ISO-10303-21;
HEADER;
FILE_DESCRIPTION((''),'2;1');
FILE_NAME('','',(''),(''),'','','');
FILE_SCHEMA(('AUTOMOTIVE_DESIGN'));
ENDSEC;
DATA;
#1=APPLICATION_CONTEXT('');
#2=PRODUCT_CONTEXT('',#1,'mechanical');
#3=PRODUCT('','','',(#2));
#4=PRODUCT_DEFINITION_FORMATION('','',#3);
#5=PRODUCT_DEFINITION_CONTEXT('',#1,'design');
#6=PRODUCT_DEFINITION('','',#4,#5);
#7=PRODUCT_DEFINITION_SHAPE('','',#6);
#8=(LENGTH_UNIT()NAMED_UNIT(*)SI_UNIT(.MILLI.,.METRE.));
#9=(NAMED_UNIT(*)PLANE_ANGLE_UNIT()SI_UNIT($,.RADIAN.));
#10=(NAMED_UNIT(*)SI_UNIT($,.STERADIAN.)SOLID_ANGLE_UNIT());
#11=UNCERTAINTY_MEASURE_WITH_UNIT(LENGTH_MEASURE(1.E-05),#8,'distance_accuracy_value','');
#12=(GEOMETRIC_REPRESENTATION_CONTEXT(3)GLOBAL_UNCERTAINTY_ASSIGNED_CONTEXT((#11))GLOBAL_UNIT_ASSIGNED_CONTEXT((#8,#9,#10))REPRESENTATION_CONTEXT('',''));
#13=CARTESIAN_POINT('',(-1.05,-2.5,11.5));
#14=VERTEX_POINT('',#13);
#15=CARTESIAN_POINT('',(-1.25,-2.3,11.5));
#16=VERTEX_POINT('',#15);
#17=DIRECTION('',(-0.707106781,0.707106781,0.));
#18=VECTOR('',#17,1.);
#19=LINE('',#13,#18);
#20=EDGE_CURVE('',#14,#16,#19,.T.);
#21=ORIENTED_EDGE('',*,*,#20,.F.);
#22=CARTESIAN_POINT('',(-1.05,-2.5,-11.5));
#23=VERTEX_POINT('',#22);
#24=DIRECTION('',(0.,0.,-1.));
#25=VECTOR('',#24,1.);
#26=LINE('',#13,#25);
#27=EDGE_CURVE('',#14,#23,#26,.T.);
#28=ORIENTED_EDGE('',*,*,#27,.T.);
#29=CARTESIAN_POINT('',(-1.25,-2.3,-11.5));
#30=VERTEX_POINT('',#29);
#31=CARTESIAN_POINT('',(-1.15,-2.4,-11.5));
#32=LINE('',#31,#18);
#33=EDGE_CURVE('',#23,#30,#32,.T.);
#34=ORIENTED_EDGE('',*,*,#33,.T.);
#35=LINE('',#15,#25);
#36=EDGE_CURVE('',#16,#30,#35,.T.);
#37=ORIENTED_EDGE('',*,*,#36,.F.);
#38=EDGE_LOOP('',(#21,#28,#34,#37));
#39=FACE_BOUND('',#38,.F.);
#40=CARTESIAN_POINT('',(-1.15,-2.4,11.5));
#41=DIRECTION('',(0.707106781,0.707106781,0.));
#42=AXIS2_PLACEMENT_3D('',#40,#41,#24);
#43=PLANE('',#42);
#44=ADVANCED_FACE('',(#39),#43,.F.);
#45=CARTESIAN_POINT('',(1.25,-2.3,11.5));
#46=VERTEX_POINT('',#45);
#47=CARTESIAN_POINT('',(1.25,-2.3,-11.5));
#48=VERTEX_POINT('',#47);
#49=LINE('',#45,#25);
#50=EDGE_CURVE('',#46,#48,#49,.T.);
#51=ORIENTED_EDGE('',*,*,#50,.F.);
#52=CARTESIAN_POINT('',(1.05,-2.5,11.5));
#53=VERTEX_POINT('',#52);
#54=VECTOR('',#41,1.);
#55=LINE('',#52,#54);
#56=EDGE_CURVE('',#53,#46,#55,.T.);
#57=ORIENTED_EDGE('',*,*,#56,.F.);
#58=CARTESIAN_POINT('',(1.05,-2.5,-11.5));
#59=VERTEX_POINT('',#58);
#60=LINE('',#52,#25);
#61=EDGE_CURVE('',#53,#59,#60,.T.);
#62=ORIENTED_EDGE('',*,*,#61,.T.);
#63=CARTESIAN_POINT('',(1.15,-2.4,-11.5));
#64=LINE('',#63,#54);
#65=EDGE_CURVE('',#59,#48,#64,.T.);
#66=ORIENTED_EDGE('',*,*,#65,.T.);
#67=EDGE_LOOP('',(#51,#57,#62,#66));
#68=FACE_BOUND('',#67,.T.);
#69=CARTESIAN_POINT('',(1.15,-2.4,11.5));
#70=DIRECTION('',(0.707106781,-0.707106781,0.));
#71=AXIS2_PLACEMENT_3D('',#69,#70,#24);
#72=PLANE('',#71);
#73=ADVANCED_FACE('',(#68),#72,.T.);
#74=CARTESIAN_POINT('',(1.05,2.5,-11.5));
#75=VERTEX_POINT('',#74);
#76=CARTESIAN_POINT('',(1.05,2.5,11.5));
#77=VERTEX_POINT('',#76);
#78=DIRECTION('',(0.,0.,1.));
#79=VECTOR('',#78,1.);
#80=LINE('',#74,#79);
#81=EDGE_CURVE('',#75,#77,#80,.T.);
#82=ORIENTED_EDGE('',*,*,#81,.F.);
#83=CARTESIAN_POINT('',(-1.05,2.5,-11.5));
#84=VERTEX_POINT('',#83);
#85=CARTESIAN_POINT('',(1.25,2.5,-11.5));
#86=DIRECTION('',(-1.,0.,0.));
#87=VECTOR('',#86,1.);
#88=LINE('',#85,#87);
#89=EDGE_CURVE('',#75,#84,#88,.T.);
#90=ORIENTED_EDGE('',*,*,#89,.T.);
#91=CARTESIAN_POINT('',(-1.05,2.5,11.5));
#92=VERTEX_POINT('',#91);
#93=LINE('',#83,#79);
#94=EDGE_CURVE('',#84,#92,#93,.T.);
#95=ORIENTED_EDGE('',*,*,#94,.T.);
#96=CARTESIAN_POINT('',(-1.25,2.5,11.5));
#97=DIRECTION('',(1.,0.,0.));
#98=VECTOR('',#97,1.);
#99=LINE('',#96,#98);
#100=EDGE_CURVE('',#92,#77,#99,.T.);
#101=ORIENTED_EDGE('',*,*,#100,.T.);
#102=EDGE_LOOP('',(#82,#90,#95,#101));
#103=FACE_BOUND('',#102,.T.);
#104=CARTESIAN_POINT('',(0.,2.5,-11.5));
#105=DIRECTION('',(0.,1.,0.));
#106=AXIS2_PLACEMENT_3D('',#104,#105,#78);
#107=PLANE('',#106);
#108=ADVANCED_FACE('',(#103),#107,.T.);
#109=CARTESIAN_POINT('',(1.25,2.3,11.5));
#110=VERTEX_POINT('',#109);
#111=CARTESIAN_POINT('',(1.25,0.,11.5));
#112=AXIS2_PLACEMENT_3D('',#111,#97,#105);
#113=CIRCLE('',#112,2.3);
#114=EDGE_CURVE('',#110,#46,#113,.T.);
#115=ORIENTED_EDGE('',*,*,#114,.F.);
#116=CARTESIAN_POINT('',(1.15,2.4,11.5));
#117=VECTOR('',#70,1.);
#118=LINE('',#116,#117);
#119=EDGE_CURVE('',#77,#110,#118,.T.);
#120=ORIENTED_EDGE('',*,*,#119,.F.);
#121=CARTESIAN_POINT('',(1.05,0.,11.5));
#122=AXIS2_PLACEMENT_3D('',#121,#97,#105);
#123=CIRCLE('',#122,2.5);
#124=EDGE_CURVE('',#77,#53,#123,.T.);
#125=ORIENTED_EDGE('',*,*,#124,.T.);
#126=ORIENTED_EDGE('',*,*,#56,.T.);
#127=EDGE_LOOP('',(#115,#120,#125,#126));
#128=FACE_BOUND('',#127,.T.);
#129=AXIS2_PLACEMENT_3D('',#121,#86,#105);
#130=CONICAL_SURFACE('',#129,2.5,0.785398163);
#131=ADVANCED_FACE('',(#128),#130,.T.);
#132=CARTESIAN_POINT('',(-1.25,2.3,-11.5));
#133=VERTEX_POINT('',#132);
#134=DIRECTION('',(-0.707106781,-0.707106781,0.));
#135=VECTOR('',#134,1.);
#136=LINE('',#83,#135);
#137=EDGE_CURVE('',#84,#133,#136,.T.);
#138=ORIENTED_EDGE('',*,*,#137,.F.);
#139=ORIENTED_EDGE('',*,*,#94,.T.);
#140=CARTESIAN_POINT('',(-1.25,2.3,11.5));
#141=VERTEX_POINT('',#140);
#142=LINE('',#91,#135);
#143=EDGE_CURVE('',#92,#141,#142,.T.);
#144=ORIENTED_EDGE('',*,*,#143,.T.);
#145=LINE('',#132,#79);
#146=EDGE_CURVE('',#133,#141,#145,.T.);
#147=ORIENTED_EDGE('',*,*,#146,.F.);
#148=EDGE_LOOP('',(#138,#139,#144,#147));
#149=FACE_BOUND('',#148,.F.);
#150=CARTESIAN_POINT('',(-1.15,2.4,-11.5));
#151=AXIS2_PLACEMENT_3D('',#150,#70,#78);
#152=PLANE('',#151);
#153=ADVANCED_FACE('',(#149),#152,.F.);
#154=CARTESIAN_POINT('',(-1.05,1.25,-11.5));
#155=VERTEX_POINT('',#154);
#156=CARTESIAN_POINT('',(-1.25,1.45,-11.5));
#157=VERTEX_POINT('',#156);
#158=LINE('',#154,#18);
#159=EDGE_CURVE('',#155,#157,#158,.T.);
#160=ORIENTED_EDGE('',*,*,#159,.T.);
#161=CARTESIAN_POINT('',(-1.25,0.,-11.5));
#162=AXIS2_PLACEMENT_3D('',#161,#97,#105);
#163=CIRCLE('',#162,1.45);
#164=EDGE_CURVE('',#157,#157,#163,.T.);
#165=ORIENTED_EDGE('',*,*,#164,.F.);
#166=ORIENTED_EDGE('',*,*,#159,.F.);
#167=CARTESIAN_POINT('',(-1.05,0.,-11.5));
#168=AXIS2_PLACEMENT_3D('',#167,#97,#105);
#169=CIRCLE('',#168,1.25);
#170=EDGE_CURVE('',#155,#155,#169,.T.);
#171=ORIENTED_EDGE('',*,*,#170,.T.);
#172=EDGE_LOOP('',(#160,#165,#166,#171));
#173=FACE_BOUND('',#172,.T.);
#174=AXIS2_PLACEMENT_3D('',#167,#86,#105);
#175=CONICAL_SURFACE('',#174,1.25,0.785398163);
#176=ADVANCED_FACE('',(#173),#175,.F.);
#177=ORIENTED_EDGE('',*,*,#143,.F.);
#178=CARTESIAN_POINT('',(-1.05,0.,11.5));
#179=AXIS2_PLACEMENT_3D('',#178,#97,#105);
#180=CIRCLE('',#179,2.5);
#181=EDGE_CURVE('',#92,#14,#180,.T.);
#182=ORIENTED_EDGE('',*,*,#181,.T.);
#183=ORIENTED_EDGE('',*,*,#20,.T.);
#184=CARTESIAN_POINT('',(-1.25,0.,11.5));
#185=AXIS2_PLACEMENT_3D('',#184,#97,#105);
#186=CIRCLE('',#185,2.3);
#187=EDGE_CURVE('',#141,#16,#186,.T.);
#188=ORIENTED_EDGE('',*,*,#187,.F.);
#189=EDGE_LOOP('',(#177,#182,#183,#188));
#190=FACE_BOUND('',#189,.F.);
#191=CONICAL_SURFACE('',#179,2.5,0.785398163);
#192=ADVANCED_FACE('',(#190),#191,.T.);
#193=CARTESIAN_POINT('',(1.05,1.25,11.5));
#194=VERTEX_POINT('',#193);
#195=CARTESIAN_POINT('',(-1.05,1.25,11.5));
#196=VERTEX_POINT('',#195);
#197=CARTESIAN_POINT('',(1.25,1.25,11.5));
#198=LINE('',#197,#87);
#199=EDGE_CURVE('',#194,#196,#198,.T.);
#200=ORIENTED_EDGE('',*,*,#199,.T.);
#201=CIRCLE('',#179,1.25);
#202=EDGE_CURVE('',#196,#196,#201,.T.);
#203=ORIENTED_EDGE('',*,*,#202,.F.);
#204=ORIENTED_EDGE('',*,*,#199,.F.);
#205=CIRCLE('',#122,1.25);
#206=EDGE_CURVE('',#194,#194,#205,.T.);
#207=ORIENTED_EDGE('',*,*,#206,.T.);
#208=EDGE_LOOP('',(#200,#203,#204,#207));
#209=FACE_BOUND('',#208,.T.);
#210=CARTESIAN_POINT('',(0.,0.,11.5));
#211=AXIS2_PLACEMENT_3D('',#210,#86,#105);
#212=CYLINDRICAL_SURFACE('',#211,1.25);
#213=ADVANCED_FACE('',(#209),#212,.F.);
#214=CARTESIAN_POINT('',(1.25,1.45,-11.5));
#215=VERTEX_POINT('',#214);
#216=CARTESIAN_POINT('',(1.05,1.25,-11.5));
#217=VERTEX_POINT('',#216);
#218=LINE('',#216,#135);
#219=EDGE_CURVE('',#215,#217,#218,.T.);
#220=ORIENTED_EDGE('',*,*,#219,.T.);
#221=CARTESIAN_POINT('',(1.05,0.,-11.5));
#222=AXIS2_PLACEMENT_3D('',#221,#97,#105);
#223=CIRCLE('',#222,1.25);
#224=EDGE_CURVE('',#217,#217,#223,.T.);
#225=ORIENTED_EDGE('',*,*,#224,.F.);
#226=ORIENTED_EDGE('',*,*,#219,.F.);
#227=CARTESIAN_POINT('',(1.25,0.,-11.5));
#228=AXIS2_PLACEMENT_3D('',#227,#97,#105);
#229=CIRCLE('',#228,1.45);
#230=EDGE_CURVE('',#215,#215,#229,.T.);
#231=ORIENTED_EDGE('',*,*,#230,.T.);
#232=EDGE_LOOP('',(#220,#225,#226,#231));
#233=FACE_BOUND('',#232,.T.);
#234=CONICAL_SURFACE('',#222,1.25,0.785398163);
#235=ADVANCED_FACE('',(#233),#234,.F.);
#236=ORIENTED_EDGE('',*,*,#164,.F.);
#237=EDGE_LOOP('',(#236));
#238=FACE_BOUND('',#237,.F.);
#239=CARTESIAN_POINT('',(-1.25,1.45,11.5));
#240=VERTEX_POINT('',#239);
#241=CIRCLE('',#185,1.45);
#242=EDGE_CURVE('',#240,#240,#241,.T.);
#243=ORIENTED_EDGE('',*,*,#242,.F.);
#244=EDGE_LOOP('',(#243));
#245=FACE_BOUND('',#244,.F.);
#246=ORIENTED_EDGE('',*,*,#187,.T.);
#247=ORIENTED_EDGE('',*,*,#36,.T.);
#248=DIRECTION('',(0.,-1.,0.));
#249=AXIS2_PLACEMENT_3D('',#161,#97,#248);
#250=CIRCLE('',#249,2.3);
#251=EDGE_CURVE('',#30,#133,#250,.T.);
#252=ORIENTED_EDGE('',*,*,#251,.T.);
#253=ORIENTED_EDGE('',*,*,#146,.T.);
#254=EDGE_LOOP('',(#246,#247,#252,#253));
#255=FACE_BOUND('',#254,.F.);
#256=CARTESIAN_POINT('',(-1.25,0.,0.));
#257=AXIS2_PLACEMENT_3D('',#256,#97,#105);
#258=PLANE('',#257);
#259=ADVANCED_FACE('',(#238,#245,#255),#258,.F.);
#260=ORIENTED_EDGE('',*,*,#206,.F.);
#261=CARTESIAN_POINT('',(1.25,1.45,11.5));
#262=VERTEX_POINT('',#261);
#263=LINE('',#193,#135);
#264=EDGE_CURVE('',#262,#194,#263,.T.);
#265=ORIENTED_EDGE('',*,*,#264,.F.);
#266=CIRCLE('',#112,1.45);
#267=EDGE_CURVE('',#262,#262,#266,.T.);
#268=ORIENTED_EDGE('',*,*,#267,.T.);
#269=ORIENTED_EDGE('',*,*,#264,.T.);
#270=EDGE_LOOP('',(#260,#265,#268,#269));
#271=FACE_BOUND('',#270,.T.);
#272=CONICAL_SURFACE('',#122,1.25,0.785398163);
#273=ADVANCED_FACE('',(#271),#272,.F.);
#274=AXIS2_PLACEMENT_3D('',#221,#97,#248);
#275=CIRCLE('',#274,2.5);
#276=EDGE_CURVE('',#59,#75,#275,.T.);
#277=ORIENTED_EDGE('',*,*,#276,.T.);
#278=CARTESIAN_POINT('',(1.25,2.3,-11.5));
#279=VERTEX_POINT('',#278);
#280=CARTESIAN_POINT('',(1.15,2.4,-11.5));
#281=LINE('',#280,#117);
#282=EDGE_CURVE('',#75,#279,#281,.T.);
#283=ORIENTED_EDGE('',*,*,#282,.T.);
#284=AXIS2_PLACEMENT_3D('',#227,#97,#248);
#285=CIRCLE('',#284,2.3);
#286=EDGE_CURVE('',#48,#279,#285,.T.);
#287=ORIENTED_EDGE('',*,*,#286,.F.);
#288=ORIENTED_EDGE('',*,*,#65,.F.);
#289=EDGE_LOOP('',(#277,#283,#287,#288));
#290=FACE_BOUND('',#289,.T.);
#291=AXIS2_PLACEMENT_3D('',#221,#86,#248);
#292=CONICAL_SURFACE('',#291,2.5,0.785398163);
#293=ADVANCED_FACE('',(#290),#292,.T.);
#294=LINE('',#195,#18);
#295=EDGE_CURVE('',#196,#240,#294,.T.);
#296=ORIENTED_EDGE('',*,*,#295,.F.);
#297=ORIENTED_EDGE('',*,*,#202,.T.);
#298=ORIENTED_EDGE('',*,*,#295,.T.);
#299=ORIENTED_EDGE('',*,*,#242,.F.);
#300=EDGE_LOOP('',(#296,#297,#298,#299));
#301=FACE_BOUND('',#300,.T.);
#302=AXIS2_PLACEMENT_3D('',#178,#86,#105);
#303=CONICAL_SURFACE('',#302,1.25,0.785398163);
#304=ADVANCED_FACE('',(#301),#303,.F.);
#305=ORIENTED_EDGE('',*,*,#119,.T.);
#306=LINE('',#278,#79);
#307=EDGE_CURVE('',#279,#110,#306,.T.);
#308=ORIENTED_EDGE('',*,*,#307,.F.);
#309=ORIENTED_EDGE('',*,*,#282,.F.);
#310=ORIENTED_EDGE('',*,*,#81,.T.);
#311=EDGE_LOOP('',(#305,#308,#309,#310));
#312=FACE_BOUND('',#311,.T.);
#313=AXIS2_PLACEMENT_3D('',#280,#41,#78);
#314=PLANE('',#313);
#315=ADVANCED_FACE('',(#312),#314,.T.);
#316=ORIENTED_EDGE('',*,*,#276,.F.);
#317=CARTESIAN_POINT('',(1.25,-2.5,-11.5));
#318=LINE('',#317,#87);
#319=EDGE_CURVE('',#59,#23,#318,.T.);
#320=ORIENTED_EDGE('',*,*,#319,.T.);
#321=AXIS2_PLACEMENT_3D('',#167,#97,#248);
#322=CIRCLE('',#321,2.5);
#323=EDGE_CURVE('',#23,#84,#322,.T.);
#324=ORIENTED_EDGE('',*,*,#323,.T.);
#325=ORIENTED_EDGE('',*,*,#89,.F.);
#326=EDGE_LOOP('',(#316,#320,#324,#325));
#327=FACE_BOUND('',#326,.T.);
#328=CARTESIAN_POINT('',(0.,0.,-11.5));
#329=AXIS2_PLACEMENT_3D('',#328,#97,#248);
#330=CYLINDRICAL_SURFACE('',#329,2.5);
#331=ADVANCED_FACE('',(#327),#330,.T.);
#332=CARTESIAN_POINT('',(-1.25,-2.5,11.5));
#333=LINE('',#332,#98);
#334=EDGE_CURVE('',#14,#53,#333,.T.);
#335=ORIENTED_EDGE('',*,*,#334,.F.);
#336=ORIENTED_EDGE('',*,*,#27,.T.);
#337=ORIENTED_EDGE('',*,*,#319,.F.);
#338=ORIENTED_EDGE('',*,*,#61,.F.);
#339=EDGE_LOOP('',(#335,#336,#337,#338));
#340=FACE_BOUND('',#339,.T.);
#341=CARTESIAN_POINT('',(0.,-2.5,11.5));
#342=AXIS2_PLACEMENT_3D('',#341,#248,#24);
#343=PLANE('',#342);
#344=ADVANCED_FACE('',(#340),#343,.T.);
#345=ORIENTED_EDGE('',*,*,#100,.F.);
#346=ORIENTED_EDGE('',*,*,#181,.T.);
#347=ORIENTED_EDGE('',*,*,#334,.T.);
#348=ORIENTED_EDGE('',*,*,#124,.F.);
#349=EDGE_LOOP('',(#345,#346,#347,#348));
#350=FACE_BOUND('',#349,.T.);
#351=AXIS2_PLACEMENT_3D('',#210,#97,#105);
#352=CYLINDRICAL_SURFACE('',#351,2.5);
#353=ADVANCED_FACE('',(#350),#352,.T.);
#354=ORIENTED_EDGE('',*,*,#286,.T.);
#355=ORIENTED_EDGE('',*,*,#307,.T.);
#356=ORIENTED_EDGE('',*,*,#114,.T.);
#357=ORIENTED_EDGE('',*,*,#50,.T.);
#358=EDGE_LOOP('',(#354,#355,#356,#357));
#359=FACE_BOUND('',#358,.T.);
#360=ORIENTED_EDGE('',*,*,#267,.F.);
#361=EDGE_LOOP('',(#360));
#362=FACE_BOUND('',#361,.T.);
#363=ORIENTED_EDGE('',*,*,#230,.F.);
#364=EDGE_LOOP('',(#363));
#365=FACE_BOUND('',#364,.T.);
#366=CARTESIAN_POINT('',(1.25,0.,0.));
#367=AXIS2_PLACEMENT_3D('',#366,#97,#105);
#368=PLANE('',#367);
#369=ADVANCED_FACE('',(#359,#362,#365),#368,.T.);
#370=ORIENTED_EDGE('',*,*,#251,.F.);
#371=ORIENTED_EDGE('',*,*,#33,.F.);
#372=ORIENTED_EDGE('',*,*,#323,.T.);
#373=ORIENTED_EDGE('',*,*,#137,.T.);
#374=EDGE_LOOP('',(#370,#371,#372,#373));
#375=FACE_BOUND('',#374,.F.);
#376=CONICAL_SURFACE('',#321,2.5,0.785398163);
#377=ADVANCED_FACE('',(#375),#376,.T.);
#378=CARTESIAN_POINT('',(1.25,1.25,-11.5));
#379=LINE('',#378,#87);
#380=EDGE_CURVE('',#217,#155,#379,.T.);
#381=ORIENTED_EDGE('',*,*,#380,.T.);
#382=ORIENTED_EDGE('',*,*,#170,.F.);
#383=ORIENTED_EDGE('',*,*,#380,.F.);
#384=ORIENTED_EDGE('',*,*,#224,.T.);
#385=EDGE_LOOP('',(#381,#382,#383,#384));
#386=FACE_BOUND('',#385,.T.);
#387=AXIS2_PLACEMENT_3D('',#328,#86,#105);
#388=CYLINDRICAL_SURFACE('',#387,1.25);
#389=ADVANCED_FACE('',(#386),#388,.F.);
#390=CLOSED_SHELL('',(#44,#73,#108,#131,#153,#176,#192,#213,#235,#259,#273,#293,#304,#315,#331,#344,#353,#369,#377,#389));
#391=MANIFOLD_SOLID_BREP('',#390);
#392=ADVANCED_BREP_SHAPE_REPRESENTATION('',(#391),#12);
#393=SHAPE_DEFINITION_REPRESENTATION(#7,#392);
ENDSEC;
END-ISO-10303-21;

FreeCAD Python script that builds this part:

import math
import FreeCAD as App
import Part
import Sketcher
Q = App.Units.Quantity


def edges_at(feature, points):
    """Names of the edges that pass closest to the given points."""
    edges = feature.Shape.Edges
    near = lambda p: min(range(len(edges)), key=lambda i: edges[i].distToShape(Part.Vertex(*p))[0])
    return sorted({f"Edge{near(p) + 1}" for p in points})

doc = App.newDocument("Part")
body = doc.addObject("PartDesign::Body", "Body")

# Sketch on YZ plane
sketch1 = body.newObject("Sketcher::SketchObject", "Sketch")
sketch1.AttachmentSupport = (doc.getObject("YZ_Plane"), [""])
sketch1.MapMode = "FlatFace"
sketch1.addGeometry(Part.LineSegment(App.Vector(2.5, -11.5, 0), App.Vector(2.5, 11.5, 0)), False)
sketch1.addGeometry(Part.ArcOfCircle(Part.Circle(App.Vector(0, 11.5, 0), App.Vector(0, 0, 1), 2.5), math.radians(0), math.radians(180)), False)
sketch1.addGeometry(Part.LineSegment(App.Vector(-2.5, 11.5, 0), App.Vector(-2.5, -11.5, 0)), False)
sketch1.addGeometry(Part.ArcOfCircle(Part.Circle(App.Vector(0, -11.5, 0), App.Vector(0, 0, 1), 2.5), math.radians(180), math.radians(360)), False)
sketch1.addGeometry(Part.Circle(App.Vector(0, -11.5, 0), App.Vector(0, 0, 1), 1.25), False)
sketch1.addGeometry(Part.Circle(App.Vector(0, 11.5, 0), App.Vector(0, 0, 1), 1.25), False)
sketch1.addConstraint(Sketcher.Constraint("Tangent", 0, 2, 1, 1))
sketch1.addConstraint(Sketcher.Constraint("Tangent", 1, 2, 2, 1))
sketch1.addConstraint(Sketcher.Constraint("Tangent", 2, 2, 3, 1))
sketch1.addConstraint(Sketcher.Constraint("Tangent", 3, 2, 0, 1))
sketch1.addConstraint(Sketcher.Constraint("Vertical", 0))
sketch1.addConstraint(Sketcher.Constraint("Vertical", 2))
sketch1.addConstraint(Sketcher.Constraint("Coincident", 4, 3, 3, 3))
sketch1.addConstraint(Sketcher.Constraint("Coincident", 5, 3, 1, 3))
sketch1.addConstraint(Sketcher.Constraint("Equal", 4, 5))
sketch1.addConstraint(Sketcher.Constraint("Symmetric", 1, 3, 3, 3, -1, 1))
sketch1.addConstraint(Sketcher.Constraint("Diameter", 4, Q("2.5 mm")))
sketch1.addConstraint(Sketcher.Constraint("Radius", 1, Q("2.5 mm")))
sketch1.addConstraint(Sketcher.Constraint("DistanceY", 0, 1, 0, 2, Q("23 mm")))
pad1 = body.newObject("PartDesign::Pad", "Pad")
pad1.Profile = sketch1
pad1.Length = 2.5
pad1.Midplane = True
doc.recompute()

chamfer = body.newObject("PartDesign::Chamfer", "Chamfer")
chamfer.Base = (pad1, edges_at(pad1, [
    (1.25, 2.5, 0),
    (1.25, 0, 14),
    (1.25, -2.5, 0),
    (1.25, 0, -14),
    (-1.25, 0, 14),
    (-1.25, 2.5, 0),
    (-1.25, -2.5, 0),
    (-1.25, 0, -14),
    (-1.25, -1.25, 11.5),
    (-1.25, -1.25, -11.5),
    (1.25, -1.25, 11.5),
    (1.25, -1.25, -11.5),
]))
chamfer.Size = 0.2

doc.recompute()
